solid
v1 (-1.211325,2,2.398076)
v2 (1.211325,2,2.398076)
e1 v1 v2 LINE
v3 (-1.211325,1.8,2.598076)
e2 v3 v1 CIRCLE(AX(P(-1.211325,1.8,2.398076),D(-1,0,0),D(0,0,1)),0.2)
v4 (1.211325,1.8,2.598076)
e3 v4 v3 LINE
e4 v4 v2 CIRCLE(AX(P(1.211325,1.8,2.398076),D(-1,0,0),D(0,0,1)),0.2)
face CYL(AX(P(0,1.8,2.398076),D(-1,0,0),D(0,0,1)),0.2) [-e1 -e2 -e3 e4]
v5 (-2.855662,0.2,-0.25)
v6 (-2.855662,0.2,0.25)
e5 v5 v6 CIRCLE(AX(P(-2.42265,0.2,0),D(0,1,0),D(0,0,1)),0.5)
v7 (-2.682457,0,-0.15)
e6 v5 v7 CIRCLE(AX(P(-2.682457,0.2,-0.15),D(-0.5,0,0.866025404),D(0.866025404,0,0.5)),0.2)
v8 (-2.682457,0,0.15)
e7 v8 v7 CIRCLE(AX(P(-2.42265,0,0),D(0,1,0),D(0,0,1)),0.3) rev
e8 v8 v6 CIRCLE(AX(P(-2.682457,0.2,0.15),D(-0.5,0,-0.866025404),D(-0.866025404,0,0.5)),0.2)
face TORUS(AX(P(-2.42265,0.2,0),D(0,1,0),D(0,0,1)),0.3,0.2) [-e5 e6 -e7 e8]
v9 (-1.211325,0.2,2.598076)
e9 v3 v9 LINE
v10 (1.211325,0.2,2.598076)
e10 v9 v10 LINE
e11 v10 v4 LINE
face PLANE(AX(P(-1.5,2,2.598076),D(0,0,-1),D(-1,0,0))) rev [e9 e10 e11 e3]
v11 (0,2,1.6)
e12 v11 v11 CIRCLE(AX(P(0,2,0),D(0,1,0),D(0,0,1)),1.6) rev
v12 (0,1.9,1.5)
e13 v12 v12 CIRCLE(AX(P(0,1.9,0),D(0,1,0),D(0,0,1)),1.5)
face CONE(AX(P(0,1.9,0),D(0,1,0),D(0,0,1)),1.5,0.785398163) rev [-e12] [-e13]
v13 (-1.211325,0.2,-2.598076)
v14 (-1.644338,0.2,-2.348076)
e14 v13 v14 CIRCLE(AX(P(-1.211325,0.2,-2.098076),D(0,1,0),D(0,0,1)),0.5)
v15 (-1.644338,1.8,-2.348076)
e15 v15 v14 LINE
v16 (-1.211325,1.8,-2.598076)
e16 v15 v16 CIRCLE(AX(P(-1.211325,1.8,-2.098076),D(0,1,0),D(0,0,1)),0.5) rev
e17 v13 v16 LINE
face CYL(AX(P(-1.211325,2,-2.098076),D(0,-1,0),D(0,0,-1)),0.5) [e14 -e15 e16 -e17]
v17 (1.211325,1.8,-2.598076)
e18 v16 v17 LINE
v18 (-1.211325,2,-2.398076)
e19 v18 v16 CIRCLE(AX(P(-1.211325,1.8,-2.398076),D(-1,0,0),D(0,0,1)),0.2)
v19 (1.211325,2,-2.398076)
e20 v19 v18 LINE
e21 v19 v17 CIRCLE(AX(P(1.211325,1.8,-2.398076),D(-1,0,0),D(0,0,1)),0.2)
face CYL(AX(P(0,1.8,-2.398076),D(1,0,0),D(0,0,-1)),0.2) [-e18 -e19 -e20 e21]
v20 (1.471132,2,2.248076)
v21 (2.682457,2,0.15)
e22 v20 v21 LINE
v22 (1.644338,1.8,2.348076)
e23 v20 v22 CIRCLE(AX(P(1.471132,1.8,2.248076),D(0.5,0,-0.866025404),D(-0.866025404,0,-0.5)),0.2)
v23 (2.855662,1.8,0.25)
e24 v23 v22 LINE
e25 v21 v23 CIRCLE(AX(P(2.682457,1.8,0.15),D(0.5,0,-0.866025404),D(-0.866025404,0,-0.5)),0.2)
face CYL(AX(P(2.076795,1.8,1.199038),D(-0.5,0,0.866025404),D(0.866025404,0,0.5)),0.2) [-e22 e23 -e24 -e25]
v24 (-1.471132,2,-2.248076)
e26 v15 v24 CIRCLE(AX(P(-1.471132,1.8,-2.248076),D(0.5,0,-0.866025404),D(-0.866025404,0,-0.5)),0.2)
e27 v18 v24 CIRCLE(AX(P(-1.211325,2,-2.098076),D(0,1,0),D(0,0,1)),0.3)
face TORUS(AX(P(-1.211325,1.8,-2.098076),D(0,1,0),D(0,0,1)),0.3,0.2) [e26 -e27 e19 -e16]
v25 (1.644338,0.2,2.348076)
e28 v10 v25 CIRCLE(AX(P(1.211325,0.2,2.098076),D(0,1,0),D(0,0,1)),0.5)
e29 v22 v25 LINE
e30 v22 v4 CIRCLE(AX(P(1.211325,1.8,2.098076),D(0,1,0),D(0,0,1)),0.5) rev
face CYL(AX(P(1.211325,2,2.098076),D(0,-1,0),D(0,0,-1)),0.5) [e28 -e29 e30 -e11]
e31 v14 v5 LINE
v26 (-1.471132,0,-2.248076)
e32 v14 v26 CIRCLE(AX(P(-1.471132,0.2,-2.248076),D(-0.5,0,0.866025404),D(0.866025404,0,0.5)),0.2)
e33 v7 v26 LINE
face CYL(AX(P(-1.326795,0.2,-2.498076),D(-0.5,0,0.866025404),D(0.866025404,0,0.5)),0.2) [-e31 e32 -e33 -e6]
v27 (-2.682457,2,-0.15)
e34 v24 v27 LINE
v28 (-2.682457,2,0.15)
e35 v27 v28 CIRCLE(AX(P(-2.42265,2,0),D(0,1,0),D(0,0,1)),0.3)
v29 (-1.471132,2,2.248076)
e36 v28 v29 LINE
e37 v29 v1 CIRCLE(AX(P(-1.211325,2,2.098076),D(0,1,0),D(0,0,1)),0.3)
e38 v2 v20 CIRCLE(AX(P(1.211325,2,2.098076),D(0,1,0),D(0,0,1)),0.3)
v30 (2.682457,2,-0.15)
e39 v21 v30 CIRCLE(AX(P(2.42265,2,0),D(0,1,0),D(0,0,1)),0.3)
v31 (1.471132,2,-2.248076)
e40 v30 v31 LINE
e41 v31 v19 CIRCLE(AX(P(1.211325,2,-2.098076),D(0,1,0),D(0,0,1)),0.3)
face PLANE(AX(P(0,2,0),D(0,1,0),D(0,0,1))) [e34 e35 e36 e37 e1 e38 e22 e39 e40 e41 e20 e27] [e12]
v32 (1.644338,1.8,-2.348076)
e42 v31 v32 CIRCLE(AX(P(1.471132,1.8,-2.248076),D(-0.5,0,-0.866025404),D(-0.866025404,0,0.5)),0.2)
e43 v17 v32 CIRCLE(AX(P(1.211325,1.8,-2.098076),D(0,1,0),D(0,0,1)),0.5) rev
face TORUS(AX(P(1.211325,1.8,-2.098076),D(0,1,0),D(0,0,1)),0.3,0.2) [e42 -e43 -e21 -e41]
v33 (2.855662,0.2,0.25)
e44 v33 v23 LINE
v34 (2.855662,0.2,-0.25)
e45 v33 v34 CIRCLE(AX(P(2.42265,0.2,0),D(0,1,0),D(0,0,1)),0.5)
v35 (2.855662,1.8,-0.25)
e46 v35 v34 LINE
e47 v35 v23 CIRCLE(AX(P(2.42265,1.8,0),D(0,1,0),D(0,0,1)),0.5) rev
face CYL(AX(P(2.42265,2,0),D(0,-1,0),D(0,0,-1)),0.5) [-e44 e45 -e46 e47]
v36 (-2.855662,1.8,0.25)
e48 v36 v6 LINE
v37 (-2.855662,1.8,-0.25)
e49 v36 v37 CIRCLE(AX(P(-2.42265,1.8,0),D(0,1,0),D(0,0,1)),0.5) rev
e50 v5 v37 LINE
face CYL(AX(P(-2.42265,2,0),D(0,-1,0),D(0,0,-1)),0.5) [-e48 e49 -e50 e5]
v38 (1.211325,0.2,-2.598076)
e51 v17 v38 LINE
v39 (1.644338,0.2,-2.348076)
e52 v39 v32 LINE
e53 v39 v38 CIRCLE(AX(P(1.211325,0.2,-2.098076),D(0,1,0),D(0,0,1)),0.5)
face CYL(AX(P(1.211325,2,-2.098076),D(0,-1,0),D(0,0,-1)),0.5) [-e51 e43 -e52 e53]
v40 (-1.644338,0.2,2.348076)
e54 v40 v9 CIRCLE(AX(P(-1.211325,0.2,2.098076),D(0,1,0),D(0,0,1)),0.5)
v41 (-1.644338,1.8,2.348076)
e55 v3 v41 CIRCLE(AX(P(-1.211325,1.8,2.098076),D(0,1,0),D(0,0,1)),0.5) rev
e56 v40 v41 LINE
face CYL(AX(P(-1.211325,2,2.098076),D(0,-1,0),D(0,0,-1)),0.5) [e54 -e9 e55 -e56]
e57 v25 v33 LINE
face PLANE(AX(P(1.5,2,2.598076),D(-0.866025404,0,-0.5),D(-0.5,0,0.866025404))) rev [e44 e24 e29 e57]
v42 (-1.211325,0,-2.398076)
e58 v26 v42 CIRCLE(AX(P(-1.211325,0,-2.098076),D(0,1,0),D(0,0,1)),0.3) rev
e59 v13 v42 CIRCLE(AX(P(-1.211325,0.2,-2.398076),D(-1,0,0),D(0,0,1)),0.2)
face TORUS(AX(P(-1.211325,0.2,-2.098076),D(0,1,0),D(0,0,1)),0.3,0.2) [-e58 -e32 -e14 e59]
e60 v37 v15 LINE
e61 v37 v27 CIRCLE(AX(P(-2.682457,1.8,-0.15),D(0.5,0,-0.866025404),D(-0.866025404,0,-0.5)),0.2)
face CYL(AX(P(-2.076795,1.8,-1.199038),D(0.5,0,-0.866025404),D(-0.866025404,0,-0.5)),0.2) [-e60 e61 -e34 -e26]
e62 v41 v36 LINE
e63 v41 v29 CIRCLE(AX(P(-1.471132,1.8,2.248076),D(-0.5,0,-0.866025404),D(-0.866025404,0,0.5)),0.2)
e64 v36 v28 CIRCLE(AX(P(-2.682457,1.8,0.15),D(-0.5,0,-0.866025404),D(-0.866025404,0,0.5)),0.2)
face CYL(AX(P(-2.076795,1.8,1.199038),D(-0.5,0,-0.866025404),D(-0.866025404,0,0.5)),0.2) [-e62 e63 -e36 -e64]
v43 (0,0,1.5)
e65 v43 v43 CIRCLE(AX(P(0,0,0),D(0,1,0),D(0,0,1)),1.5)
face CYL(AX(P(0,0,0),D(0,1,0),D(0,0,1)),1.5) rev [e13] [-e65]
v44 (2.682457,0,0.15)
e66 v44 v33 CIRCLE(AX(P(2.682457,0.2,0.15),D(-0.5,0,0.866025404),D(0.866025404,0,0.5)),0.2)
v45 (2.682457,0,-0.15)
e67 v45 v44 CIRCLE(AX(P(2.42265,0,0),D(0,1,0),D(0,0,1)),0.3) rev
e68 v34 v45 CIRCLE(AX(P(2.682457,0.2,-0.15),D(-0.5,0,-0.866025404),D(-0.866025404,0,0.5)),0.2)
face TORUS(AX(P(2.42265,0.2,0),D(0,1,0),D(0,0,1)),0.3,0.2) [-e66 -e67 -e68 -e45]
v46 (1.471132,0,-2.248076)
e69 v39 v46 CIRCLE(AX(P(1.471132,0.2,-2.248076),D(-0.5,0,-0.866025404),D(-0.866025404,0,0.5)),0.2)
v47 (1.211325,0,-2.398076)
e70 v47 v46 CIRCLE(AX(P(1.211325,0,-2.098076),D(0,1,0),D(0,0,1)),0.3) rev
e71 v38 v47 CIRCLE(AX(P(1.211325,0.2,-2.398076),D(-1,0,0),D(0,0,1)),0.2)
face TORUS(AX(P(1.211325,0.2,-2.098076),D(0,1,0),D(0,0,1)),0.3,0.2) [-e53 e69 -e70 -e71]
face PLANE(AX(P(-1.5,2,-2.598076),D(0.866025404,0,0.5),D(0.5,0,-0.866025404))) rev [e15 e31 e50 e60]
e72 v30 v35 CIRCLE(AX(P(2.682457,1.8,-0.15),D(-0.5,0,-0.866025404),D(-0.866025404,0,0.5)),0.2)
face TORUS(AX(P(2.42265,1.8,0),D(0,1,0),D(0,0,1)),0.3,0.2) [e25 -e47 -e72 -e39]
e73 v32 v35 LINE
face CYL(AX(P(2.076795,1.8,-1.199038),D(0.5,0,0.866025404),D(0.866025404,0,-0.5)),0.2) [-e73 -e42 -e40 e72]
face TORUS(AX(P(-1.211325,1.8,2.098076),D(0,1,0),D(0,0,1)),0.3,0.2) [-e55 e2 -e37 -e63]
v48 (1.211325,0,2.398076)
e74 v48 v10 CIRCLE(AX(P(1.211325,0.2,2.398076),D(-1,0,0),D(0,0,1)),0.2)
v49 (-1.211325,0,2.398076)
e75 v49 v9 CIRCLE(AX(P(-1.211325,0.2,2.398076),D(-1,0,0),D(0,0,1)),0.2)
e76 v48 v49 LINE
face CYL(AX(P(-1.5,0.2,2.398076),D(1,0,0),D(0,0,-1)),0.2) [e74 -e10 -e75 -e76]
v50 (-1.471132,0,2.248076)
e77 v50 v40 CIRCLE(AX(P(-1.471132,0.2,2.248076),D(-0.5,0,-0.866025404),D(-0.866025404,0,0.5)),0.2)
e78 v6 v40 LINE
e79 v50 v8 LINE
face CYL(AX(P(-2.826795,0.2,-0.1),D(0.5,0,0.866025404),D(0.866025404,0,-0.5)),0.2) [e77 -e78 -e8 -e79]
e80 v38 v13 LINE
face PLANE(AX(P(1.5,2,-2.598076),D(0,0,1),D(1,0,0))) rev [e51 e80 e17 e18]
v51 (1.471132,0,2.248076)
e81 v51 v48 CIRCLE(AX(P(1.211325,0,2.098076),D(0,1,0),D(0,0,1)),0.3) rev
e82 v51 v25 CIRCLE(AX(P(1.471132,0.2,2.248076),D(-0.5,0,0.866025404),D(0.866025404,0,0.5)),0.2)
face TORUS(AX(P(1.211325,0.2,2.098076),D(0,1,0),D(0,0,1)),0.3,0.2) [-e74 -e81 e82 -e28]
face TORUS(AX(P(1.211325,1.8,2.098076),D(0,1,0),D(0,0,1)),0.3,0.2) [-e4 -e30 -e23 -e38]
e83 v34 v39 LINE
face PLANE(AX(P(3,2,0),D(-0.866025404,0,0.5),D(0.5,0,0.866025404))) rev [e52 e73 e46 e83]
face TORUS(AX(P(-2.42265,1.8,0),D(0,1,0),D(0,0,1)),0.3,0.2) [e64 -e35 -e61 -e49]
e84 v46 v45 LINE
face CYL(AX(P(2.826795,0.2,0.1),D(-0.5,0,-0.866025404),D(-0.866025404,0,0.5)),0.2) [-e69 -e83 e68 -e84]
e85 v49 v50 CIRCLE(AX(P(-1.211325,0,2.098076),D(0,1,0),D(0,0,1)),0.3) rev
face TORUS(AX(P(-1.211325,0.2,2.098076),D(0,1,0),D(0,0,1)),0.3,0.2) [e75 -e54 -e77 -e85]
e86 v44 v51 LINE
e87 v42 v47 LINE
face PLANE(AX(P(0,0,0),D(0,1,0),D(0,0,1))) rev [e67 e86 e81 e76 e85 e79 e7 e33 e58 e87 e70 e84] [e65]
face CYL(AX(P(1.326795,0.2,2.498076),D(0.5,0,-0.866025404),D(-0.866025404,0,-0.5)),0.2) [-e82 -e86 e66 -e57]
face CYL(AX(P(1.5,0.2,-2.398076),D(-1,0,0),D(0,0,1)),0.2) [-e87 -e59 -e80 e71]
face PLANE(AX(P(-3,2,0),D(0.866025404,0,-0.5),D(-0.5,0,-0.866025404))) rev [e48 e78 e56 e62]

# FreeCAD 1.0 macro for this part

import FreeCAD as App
import Part
import Sketcher
Q = App.Units.Quantity


def edges_at(feature, points):
    """Names of the edges that pass closest to the given points."""
    edges = feature.Shape.Edges
    near = lambda p: min(range(len(edges)), key=lambda i: edges[i].distToShape(Part.Vertex(*p))[0])
    return sorted({f"Edge{near(p) + 1}" for p in points})

doc = App.newDocument("Part")
params = doc.addObject("Spreadsheet::Sheet", "Params")
for row, (alias, value) in enumerate([
    ("sketch1_width", "3 mm"),
    ("sketch1_length", "3 mm"),
    ("pad1_length", "2 mm"),
    ("sketch2_diameter", "3 mm"),
    ("fillet_radius", "0.5 mm"),
    ("fillet2_radius", "0.2 mm"),
    ("chamfer_size", "0.1 mm"),
], start=1):
    params.set(f"A{row}", alias)
    params.set(f"B{row}", "=" + value)
    params.setAlias(f"B{row}", alias)

body = doc.addObject("PartDesign::Body", "Body")

# Sketch on XZ plane
sketch1 = body.newObject("Sketcher::SketchObject", "Sketch")
sketch1.AttachmentSupport = (doc.getObject("XZ_Plane"), [""])
sketch1.MapMode = "FlatFace"
sketch1.addGeometry([
    Part.LineSegment(App.Vector(3, 0, 0), App.Vector(1.5, -2.598076, 0)),  # 0
    Part.LineSegment(App.Vector(1.5, -2.598076, 0), App.Vector(-1.5, -2.598076, 0)),  # 1
    Part.LineSegment(App.Vector(-1.5, -2.598076, 0), App.Vector(-3, 0, 0)),  # 2
    Part.LineSegment(App.Vector(-3, 0, 0), App.Vector(-1.5, 2.598076, 0)),  # 3
    Part.LineSegment(App.Vector(-1.5, 2.598076, 0), App.Vector(1.5, 2.598076, 0)),  # 4
    Part.LineSegment(App.Vector(1.5, 2.598076, 0), App.Vector(3, 0, 0)),  # 5
], False)
sketch1.addConstraint([
    Sketcher.Constraint("Coincident", 0, 2, 1, 1),
    Sketcher.Constraint("Coincident", 1, 2, 2, 1),
    Sketcher.Constraint("Coincident", 2, 2, 3, 1),
    Sketcher.Constraint("Coincident", 3, 2, 4, 1),
    Sketcher.Constraint("Coincident", 4, 2, 5, 1),
    Sketcher.Constraint("Coincident", 5, 2, 0, 1),
    Sketcher.Constraint("Horizontal", 1),
    Sketcher.Constraint("Horizontal", 4),
    Sketcher.Constraint("Symmetric", 0, 2, 3, 2, -1, 1),
    Sketcher.Constraint("Symmetric", 2, 2, 5, 2, -1, 1),
    Sketcher.Constraint("PointOnObject", 2, 2, -1),
    Sketcher.Constraint("Parallel", 2, 5),
    Sketcher.Constraint("Vertical", 1, 2, 3, 2),
    Sketcher.Constraint("DistanceX", 1, 2, 1, 1, Q("3 mm")),
    Sketcher.Constraint("Angle", 0, Q("-120 deg")),
    Sketcher.Constraint("Distance", 0, Q("3 mm")),
])
sketch1.setExpression("Constraints[13]", "Params.sketch1_width")
sketch1.setExpression("Constraints[15]", "Params.sketch1_length")
pad1 = body.newObject("PartDesign::Pad", "Pad")
pad1.Profile = sketch1
pad1.setExpression("Length", "Params.pad1_length")
pad1.Reversed = True

# Sketch on XZ plane
sketch2 = body.newObject("Sketcher::SketchObject", "Sketch001")
sketch2.AttachmentSupport = (doc.getObject("XZ_Plane"), [""])
sketch2.MapMode = "FlatFace"
sketch2.AttachmentOffset = App.Placement(App.Vector(0, 0, -2), App.Rotation())
sketch2.addGeometry(Part.Circle(App.Vector(0, 0, 0), App.Vector(0, 0, 1), 1.5), False)
sketch2.addConstraint([
    Sketcher.Constraint("Coincident", 0, 3, -1, 1),
    Sketcher.Constraint("Diameter", 0, Q("3 mm")),
])
sketch2.setExpression("Constraints[1]", "Params.sketch2_diameter")
pocket1 = body.newObject("PartDesign::Pocket", "Pocket")
pocket1.Profile = sketch2
pocket1.Type = "ThroughAll"
pocket1.Reversed = True
doc.recompute()

fillet = body.newObject("PartDesign::Fillet", "Fillet")
fillet.Base = (pocket1, edges_at(pocket1, [
    (1.5, 1, 2.598),
    (-1.5, 1, 2.598),
    (-3, 1, 0),
    (-1.5, 1, -2.598),
    (1.5, 1, -2.598),
    (3, 1, 0),
]))
fillet.setExpression("Radius", "Params.fillet_radius")
doc.recompute()

fillet2 = body.newObject("PartDesign::Fillet", "Fillet001")
fillet2.Base = (fillet, edges_at(fillet, [
    (0, 0, 2.598),
    (0, 2, 2.598),
    (2.25, 0, 1.299),
    (-2.25, 0, 1.299),
    (-2.25, 0, -1.299),
    (0, 0, -2.598),
    (2.25, 0, -1.299),
    (1.461, 0, 2.531),
    (2.923, 0, 0),
    (1.461, 0, -2.531),
    (-1.461, 0, -2.531),
    (-2.923, 0, 0),
    (-1.461, 0, 2.531),
    (-2.25, 2, 1.299),
    (2.25, 2, 1.299),
    (2.25, 2, -1.299),
    (0, 2, -2.598),
    (-2.25, 2, -1.299),
    (1.461, 2, 2.531),
    (2.923, 2, 0),
    (1.461, 2, -2.531),
    (-1.461, 2, -2.531),
    (-2.923, 2, 0),
    (-1.461, 2, 2.531),
]))
fillet2.setExpression("Radius", "Params.fillet2_radius")
doc.recompute()

chamfer = body.newObject("PartDesign::Chamfer", "Chamfer")
chamfer.Base = (fillet2, edges_at(fillet2, [(0, 2, -1.5)]))
chamfer.setExpression("Size", "Params.chamfer_size")

doc.recompute()
